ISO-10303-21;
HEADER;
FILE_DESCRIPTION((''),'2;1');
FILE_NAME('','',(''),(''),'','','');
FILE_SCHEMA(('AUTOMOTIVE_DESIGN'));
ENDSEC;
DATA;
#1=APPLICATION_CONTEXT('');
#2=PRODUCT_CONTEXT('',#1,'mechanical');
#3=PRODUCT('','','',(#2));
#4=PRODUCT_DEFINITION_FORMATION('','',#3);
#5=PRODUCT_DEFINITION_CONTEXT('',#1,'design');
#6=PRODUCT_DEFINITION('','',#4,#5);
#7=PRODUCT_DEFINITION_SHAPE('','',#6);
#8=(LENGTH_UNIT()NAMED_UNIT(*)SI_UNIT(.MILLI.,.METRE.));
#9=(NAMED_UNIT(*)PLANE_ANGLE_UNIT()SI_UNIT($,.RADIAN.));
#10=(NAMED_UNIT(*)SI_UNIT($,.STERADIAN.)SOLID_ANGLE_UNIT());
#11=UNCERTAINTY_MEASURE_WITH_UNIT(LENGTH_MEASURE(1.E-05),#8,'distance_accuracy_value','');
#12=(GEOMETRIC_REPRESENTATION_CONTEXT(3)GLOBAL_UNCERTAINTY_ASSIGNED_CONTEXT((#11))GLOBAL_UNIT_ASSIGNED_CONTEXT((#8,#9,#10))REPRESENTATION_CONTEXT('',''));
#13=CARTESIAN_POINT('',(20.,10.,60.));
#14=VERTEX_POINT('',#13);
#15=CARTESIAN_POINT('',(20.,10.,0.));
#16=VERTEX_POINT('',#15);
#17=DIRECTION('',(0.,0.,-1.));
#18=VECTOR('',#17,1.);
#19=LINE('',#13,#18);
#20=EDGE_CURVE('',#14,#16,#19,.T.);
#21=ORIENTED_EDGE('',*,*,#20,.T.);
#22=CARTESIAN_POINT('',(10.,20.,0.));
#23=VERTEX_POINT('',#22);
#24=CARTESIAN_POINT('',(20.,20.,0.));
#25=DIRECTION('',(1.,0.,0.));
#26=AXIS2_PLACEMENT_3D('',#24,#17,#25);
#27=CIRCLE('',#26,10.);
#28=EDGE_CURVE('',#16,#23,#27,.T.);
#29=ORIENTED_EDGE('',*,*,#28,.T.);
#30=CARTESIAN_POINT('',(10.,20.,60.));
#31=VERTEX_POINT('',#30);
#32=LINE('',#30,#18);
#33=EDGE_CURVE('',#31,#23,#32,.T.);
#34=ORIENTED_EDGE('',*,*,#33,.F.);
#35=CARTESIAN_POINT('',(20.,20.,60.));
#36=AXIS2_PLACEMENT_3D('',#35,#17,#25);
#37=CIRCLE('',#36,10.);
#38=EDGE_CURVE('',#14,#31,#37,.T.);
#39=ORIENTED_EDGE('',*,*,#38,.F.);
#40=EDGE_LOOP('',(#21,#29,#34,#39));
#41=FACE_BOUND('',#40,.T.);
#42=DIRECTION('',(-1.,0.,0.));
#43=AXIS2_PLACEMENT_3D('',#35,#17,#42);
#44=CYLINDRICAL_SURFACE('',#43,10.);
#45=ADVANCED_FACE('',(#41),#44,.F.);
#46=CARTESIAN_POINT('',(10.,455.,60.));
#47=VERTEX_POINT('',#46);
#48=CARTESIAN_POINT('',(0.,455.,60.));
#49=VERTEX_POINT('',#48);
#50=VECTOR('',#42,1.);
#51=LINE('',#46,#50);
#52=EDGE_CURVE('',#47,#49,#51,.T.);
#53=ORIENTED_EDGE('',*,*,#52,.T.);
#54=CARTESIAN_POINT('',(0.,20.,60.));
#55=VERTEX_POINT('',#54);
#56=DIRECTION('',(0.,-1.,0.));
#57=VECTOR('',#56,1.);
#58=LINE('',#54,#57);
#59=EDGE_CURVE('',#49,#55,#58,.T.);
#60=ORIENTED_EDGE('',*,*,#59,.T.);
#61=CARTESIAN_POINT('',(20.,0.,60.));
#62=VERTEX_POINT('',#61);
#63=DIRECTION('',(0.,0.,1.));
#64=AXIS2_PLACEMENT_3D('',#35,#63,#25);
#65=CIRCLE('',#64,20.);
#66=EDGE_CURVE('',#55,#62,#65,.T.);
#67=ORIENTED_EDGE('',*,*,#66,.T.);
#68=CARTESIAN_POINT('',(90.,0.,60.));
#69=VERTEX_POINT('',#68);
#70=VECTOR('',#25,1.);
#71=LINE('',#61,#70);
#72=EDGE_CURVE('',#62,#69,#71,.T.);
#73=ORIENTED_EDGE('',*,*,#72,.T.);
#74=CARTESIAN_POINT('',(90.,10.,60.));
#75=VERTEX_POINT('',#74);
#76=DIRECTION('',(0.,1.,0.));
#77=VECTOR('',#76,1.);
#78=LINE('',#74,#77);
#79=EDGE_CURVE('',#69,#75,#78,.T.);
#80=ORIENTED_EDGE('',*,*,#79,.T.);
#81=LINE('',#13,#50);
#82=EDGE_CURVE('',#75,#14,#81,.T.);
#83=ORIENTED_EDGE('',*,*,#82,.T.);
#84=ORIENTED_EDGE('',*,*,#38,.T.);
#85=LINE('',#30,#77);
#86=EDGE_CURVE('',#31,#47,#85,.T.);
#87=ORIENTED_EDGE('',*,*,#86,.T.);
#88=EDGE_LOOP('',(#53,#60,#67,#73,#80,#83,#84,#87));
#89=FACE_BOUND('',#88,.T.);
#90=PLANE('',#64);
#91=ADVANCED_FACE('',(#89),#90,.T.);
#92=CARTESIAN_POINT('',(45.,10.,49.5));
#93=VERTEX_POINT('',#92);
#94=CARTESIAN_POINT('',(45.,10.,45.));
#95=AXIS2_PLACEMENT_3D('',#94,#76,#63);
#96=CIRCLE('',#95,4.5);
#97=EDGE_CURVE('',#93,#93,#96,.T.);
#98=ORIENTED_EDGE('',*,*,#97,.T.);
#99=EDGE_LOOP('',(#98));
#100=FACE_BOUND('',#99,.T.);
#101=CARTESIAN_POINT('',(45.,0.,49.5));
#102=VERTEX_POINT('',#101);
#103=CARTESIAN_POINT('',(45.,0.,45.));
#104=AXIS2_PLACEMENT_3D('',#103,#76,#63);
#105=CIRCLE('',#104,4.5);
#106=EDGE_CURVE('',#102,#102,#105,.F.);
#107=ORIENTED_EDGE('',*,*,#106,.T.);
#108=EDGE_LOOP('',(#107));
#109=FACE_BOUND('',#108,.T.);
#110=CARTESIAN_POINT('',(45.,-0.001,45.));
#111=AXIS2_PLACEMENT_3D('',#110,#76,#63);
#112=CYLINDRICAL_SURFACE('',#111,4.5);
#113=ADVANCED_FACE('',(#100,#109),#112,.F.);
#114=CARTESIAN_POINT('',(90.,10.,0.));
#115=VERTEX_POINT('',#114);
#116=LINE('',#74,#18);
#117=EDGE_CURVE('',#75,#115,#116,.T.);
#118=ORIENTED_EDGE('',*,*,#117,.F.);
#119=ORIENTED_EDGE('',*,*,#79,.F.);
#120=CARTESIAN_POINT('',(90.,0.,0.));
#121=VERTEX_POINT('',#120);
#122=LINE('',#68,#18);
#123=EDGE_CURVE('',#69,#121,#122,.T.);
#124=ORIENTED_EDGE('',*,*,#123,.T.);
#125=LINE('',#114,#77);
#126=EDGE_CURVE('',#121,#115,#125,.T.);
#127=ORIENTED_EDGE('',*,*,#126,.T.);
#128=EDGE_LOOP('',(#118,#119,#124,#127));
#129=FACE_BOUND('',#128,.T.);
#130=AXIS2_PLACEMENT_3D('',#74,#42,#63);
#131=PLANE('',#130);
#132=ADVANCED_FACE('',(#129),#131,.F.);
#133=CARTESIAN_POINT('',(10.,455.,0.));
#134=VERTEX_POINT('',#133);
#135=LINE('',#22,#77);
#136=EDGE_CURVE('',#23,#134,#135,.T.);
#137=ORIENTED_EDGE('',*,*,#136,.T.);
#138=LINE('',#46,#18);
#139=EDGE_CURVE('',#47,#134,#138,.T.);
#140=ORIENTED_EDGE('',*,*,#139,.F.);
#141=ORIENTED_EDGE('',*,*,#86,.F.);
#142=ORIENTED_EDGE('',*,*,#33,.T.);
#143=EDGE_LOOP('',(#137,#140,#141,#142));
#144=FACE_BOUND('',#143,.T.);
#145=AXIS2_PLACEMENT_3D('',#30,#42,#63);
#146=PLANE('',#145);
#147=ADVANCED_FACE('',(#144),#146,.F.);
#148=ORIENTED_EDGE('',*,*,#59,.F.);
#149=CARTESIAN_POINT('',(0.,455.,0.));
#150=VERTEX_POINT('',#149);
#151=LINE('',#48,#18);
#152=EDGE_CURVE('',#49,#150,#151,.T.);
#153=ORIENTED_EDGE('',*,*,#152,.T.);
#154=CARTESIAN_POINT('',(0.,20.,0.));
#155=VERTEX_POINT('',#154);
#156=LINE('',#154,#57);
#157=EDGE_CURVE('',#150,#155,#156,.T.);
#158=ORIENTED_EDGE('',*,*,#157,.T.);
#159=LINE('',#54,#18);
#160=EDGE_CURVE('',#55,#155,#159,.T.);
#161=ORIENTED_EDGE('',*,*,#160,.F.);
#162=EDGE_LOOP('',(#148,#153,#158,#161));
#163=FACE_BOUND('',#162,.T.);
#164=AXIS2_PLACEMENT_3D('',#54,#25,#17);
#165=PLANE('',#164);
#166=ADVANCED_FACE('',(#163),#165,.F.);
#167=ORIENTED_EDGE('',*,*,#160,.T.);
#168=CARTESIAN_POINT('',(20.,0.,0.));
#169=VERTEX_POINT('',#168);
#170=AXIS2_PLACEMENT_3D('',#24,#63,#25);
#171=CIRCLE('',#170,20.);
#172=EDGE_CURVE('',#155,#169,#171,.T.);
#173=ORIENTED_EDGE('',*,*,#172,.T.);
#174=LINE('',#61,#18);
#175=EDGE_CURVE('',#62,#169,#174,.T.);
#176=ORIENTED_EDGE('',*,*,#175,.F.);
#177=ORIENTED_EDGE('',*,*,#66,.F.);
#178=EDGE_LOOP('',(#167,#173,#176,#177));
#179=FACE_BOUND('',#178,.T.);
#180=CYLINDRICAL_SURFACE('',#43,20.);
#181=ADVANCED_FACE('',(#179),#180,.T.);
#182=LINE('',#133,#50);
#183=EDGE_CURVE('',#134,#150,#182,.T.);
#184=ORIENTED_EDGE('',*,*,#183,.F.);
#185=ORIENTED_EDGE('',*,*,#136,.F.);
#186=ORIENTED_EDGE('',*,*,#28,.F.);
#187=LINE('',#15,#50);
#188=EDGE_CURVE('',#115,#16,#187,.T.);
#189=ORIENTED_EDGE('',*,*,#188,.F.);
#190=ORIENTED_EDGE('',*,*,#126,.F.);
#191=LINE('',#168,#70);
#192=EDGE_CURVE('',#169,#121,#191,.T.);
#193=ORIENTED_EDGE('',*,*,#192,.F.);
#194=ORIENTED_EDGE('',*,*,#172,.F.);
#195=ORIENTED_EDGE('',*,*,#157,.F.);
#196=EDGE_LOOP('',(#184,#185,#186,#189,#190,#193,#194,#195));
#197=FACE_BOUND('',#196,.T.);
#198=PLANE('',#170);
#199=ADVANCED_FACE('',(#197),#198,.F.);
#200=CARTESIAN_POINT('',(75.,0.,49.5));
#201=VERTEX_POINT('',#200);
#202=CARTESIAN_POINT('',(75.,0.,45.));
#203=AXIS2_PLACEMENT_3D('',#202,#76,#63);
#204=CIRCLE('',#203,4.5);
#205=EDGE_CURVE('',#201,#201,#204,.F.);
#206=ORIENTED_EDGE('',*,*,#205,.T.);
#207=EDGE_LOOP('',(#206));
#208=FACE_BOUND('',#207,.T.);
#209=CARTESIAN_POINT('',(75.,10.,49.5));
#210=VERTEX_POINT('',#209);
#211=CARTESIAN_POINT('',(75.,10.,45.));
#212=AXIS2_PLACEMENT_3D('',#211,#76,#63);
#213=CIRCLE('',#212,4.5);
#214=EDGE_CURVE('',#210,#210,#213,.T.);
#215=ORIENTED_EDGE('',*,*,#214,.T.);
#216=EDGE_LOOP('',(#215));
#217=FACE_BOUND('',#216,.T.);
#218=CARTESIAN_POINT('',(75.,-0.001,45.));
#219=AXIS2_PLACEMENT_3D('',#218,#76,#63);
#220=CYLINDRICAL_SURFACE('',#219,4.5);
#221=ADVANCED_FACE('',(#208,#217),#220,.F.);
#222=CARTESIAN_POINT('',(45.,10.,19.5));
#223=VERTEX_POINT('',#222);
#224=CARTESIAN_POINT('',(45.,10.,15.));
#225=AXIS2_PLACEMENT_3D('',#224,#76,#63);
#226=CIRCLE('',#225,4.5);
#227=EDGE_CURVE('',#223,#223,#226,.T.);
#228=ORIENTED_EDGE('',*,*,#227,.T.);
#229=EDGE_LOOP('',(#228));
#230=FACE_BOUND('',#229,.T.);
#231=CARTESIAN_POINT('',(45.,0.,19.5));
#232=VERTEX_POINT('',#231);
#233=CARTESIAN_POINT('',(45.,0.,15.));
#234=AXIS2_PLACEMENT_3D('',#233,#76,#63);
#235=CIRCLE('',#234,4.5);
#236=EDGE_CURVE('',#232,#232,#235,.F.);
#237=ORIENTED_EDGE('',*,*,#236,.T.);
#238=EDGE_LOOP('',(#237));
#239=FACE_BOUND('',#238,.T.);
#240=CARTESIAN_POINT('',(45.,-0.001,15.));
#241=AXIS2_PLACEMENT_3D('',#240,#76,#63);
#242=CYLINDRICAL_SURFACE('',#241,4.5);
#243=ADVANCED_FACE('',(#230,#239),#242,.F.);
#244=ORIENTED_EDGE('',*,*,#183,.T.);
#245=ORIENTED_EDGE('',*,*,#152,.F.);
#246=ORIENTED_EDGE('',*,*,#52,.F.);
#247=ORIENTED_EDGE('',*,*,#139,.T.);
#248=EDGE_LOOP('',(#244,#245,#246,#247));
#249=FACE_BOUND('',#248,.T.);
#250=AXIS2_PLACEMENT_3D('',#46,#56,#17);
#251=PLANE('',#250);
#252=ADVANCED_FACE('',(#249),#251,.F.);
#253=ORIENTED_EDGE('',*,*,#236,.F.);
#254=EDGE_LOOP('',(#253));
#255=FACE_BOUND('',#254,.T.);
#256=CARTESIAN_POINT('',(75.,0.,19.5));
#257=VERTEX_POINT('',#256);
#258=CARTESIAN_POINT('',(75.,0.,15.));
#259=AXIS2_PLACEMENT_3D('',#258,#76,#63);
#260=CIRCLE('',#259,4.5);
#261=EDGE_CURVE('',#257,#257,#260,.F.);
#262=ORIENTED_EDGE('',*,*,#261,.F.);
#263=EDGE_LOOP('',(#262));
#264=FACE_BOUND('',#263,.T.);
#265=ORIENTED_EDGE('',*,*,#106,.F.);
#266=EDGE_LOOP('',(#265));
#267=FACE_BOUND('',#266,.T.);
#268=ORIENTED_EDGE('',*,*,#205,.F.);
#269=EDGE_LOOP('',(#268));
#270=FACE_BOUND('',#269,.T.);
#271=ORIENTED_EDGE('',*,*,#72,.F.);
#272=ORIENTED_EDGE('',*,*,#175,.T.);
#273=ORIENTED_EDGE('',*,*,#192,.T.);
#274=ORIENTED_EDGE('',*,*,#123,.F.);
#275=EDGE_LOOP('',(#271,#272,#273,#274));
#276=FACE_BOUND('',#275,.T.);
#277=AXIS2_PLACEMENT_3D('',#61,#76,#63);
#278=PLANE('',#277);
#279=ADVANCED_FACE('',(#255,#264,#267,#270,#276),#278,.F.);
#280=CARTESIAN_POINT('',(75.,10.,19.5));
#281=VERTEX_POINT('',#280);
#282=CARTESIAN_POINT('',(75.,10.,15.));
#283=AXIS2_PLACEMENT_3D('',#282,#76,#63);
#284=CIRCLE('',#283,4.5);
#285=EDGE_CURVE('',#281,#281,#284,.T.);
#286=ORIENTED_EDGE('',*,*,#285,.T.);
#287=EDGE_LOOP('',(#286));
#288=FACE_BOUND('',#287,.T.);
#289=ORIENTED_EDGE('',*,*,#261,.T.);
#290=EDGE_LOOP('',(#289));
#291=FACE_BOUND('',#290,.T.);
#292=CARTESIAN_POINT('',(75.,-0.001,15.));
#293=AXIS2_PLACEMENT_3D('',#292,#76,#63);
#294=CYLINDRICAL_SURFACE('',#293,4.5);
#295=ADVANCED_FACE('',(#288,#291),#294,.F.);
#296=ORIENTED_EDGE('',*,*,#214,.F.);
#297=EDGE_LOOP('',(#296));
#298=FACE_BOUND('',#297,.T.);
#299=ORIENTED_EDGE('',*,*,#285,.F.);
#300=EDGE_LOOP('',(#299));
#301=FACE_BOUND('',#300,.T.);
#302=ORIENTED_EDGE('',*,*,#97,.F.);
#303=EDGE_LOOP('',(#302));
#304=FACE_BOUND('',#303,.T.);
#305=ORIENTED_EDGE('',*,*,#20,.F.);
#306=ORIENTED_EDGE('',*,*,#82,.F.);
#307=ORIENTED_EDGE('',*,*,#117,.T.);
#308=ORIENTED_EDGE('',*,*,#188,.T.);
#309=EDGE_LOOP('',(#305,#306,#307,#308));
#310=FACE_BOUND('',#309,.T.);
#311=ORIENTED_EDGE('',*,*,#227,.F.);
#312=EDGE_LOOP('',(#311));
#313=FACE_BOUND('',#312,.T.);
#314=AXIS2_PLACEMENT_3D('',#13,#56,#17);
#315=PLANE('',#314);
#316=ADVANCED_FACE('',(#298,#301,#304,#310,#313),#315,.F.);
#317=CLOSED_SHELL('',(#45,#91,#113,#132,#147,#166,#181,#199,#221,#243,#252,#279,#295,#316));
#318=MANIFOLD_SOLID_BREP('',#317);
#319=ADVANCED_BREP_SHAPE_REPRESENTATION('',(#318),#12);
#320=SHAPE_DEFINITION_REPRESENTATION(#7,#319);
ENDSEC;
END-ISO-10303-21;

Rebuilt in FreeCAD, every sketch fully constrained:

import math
import FreeCAD as App
import Part
import Sketcher
from FreeCAD import Vector
Q = App.Units.Quantity

doc = App.newDocument("Part")
body = doc.addObject("PartDesign::Body", "Body")

sketch1 = body.newObject("Sketcher::SketchObject", "Sketch")
sketch1.AttachmentSupport = (doc.getObject("XY_Plane"), [""])
sketch1.MapMode = "FlatFace"
sketch1.addGeometry([
    Part.LineSegment(Vector(0, 455, 0), Vector(0, 20, 0)),
    Part.ArcOfCircle(Part.Circle(Vector(20, 20, 0), Vector(0, 0, 1), 20), math.radians(180), math.radians(270)),
    Part.LineSegment(Vector(20, 0, 0), Vector(90, 0, 0)),
    Part.LineSegment(Vector(90, 0, 0), Vector(90, 10, 0)),
    Part.LineSegment(Vector(90, 10, 0), Vector(20, 10, 0)),
    Part.ArcOfCircle(Part.Circle(Vector(20, 20, 0), Vector(0, 0, 1), 10), math.radians(180), math.radians(270)),
    Part.LineSegment(Vector(10, 20, 0), Vector(10, 455, 0)),
    Part.LineSegment(Vector(10, 455, 0), Vector(0, 455, 0)),
], False)
sketch1.addConstraint([
    Sketcher.Constraint("Tangent", 0, 2, 1, 1),
    Sketcher.Constraint("Tangent", 1, 2, 2, 1),
    Sketcher.Constraint("Coincident", 2, 2, 3, 1),
    Sketcher.Constraint("Coincident", 3, 2, 4, 1),
    Sketcher.Constraint("Tangent", 4, 2, 5, 2),
    Sketcher.Constraint("Tangent", 5, 1, 6, 1),
    Sketcher.Constraint("Coincident", 6, 2, 7, 1),
    Sketcher.Constraint("Coincident", 7, 2, 0, 1),
    Sketcher.Constraint("Vertical", 0),
    Sketcher.Constraint("Horizontal", 2),
    Sketcher.Constraint("Vertical", 3),
    Sketcher.Constraint("Horizontal", 4),
    Sketcher.Constraint("Vertical", 6),
    Sketcher.Constraint("Horizontal", 7),
    Sketcher.Constraint("Coincident", 5, 3, 1, 3),
    Sketcher.Constraint("PointOnObject", 0, 2, -2),
    Sketcher.Constraint("PointOnObject", 1, 2, -1),
    Sketcher.Constraint("Radius", 1, Q("20 mm")),
    Sketcher.Constraint("Radius", 5, Q("10 mm")),
    Sketcher.Constraint("DistanceX", 2, 1, 2, 2, Q("70 mm")),
    Sketcher.Constraint("DistanceY", 0, 2, 0, 1, Q("435 mm")),
])
pad1 = body.newObject("PartDesign::Pad", "Pad")
pad1.Profile = sketch1
pad1.Length = 60

sketch2 = body.newObject("Sketcher::SketchObject", "Sketch001")
sketch2.AttachmentSupport = (doc.getObject("XZ_Plane"), [""])
sketch2.MapMode = "FlatFace"
sketch2.AttachmentOffset = App.Placement(Vector(0, 0, -10), App.Rotation())
sketch2.addGeometry(Part.Circle(Vector(75, 15, 0), Vector(0, 0, 1), 4.5), False)
sketch2.addConstraint([
    Sketcher.Constraint("Diameter", 0, Q("9 mm")),
    Sketcher.Constraint("DistanceX", -1, 1, 0, 3, Q("75 mm")),
    Sketcher.Constraint("DistanceY", -1, 1, 0, 3, Q("15 mm")),
])
pocket1 = body.newObject("PartDesign::Pocket", "Pocket")
pocket1.Profile = sketch2
pocket1.Type = "UpToFirst"
pocket1.Reversed = True

sketch3 = body.newObject("Sketcher::SketchObject", "Sketch002")
sketch3.AttachmentSupport = (doc.getObject("XZ_Plane"), [""])
sketch3.MapMode = "FlatFace"
sketch3.AttachmentOffset = App.Placement(Vector(0, 0, -10), App.Rotation())
sketch3.addGeometry(Part.Circle(Vector(75, 45, 0), Vector(0, 0, 1), 4.5), False)
sketch3.addConstraint([
    Sketcher.Constraint("Diameter", 0, Q("9 mm")),
    Sketcher.Constraint("DistanceX", -1, 1, 0, 3, Q("75 mm")),
    Sketcher.Constraint("DistanceY", -1, 1, 0, 3, Q("45 mm")),
])
pocket2 = body.newObject("PartDesign::Pocket", "Pocket001")
pocket2.Profile = sketch3
pocket2.Type = "UpToFirst"
pocket2.Reversed = True

sketch4 = body.newObject("Sketcher::SketchObject", "Sketch003")
sketch4.AttachmentSupport = (doc.getObject("XZ_Plane"), [""])
sketch4.MapMode = "FlatFace"
sketch4.AttachmentOffset = App.Placement(Vector(0, 0, -10), App.Rotation())
sketch4.addGeometry(Part.Circle(Vector(45, 15, 0), Vector(0, 0, 1), 4.5), False)
sketch4.addConstraint([
    Sketcher.Constraint("Diameter", 0, Q("9 mm")),
    Sketcher.Constraint("DistanceX", -1, 1, 0, 3, Q("45 mm")),
    Sketcher.Constraint("DistanceY", -1, 1, 0, 3, Q("15 mm")),
])
pocket3 = body.newObject("PartDesign::Pocket", "Pocket002")
pocket3.Profile = sketch4
pocket3.Type = "UpToFirst"
pocket3.Reversed = True

sketch5 = body.newObject("Sketcher::SketchObject", "Sketch004")
sketch5.AttachmentSupport = (doc.getObject("XZ_Plane"), [""])
sketch5.MapMode = "FlatFace"
sketch5.AttachmentOffset = App.Placement(Vector(0, 0, -10), App.Rotation())
sketch5.addGeometry(Part.Circle(Vector(45, 45, 0), Vector(0, 0, 1), 4.5), False)
sketch5.addConstraint([
    Sketcher.Constraint("Diameter", 0, Q("9 mm")),
    Sketcher.Constraint("DistanceX", -1, 1, 0, 3, Q("45 mm")),
    Sketcher.Constraint("DistanceY", -1, 1, 0, 3, Q("45 mm")),
])
pocket4 = body.newObject("PartDesign::Pocket", "Pocket003")
pocket4.Profile = sketch5
pocket4.Type = "UpToFirst"
pocket4.Reversed = True

doc.recompute()
